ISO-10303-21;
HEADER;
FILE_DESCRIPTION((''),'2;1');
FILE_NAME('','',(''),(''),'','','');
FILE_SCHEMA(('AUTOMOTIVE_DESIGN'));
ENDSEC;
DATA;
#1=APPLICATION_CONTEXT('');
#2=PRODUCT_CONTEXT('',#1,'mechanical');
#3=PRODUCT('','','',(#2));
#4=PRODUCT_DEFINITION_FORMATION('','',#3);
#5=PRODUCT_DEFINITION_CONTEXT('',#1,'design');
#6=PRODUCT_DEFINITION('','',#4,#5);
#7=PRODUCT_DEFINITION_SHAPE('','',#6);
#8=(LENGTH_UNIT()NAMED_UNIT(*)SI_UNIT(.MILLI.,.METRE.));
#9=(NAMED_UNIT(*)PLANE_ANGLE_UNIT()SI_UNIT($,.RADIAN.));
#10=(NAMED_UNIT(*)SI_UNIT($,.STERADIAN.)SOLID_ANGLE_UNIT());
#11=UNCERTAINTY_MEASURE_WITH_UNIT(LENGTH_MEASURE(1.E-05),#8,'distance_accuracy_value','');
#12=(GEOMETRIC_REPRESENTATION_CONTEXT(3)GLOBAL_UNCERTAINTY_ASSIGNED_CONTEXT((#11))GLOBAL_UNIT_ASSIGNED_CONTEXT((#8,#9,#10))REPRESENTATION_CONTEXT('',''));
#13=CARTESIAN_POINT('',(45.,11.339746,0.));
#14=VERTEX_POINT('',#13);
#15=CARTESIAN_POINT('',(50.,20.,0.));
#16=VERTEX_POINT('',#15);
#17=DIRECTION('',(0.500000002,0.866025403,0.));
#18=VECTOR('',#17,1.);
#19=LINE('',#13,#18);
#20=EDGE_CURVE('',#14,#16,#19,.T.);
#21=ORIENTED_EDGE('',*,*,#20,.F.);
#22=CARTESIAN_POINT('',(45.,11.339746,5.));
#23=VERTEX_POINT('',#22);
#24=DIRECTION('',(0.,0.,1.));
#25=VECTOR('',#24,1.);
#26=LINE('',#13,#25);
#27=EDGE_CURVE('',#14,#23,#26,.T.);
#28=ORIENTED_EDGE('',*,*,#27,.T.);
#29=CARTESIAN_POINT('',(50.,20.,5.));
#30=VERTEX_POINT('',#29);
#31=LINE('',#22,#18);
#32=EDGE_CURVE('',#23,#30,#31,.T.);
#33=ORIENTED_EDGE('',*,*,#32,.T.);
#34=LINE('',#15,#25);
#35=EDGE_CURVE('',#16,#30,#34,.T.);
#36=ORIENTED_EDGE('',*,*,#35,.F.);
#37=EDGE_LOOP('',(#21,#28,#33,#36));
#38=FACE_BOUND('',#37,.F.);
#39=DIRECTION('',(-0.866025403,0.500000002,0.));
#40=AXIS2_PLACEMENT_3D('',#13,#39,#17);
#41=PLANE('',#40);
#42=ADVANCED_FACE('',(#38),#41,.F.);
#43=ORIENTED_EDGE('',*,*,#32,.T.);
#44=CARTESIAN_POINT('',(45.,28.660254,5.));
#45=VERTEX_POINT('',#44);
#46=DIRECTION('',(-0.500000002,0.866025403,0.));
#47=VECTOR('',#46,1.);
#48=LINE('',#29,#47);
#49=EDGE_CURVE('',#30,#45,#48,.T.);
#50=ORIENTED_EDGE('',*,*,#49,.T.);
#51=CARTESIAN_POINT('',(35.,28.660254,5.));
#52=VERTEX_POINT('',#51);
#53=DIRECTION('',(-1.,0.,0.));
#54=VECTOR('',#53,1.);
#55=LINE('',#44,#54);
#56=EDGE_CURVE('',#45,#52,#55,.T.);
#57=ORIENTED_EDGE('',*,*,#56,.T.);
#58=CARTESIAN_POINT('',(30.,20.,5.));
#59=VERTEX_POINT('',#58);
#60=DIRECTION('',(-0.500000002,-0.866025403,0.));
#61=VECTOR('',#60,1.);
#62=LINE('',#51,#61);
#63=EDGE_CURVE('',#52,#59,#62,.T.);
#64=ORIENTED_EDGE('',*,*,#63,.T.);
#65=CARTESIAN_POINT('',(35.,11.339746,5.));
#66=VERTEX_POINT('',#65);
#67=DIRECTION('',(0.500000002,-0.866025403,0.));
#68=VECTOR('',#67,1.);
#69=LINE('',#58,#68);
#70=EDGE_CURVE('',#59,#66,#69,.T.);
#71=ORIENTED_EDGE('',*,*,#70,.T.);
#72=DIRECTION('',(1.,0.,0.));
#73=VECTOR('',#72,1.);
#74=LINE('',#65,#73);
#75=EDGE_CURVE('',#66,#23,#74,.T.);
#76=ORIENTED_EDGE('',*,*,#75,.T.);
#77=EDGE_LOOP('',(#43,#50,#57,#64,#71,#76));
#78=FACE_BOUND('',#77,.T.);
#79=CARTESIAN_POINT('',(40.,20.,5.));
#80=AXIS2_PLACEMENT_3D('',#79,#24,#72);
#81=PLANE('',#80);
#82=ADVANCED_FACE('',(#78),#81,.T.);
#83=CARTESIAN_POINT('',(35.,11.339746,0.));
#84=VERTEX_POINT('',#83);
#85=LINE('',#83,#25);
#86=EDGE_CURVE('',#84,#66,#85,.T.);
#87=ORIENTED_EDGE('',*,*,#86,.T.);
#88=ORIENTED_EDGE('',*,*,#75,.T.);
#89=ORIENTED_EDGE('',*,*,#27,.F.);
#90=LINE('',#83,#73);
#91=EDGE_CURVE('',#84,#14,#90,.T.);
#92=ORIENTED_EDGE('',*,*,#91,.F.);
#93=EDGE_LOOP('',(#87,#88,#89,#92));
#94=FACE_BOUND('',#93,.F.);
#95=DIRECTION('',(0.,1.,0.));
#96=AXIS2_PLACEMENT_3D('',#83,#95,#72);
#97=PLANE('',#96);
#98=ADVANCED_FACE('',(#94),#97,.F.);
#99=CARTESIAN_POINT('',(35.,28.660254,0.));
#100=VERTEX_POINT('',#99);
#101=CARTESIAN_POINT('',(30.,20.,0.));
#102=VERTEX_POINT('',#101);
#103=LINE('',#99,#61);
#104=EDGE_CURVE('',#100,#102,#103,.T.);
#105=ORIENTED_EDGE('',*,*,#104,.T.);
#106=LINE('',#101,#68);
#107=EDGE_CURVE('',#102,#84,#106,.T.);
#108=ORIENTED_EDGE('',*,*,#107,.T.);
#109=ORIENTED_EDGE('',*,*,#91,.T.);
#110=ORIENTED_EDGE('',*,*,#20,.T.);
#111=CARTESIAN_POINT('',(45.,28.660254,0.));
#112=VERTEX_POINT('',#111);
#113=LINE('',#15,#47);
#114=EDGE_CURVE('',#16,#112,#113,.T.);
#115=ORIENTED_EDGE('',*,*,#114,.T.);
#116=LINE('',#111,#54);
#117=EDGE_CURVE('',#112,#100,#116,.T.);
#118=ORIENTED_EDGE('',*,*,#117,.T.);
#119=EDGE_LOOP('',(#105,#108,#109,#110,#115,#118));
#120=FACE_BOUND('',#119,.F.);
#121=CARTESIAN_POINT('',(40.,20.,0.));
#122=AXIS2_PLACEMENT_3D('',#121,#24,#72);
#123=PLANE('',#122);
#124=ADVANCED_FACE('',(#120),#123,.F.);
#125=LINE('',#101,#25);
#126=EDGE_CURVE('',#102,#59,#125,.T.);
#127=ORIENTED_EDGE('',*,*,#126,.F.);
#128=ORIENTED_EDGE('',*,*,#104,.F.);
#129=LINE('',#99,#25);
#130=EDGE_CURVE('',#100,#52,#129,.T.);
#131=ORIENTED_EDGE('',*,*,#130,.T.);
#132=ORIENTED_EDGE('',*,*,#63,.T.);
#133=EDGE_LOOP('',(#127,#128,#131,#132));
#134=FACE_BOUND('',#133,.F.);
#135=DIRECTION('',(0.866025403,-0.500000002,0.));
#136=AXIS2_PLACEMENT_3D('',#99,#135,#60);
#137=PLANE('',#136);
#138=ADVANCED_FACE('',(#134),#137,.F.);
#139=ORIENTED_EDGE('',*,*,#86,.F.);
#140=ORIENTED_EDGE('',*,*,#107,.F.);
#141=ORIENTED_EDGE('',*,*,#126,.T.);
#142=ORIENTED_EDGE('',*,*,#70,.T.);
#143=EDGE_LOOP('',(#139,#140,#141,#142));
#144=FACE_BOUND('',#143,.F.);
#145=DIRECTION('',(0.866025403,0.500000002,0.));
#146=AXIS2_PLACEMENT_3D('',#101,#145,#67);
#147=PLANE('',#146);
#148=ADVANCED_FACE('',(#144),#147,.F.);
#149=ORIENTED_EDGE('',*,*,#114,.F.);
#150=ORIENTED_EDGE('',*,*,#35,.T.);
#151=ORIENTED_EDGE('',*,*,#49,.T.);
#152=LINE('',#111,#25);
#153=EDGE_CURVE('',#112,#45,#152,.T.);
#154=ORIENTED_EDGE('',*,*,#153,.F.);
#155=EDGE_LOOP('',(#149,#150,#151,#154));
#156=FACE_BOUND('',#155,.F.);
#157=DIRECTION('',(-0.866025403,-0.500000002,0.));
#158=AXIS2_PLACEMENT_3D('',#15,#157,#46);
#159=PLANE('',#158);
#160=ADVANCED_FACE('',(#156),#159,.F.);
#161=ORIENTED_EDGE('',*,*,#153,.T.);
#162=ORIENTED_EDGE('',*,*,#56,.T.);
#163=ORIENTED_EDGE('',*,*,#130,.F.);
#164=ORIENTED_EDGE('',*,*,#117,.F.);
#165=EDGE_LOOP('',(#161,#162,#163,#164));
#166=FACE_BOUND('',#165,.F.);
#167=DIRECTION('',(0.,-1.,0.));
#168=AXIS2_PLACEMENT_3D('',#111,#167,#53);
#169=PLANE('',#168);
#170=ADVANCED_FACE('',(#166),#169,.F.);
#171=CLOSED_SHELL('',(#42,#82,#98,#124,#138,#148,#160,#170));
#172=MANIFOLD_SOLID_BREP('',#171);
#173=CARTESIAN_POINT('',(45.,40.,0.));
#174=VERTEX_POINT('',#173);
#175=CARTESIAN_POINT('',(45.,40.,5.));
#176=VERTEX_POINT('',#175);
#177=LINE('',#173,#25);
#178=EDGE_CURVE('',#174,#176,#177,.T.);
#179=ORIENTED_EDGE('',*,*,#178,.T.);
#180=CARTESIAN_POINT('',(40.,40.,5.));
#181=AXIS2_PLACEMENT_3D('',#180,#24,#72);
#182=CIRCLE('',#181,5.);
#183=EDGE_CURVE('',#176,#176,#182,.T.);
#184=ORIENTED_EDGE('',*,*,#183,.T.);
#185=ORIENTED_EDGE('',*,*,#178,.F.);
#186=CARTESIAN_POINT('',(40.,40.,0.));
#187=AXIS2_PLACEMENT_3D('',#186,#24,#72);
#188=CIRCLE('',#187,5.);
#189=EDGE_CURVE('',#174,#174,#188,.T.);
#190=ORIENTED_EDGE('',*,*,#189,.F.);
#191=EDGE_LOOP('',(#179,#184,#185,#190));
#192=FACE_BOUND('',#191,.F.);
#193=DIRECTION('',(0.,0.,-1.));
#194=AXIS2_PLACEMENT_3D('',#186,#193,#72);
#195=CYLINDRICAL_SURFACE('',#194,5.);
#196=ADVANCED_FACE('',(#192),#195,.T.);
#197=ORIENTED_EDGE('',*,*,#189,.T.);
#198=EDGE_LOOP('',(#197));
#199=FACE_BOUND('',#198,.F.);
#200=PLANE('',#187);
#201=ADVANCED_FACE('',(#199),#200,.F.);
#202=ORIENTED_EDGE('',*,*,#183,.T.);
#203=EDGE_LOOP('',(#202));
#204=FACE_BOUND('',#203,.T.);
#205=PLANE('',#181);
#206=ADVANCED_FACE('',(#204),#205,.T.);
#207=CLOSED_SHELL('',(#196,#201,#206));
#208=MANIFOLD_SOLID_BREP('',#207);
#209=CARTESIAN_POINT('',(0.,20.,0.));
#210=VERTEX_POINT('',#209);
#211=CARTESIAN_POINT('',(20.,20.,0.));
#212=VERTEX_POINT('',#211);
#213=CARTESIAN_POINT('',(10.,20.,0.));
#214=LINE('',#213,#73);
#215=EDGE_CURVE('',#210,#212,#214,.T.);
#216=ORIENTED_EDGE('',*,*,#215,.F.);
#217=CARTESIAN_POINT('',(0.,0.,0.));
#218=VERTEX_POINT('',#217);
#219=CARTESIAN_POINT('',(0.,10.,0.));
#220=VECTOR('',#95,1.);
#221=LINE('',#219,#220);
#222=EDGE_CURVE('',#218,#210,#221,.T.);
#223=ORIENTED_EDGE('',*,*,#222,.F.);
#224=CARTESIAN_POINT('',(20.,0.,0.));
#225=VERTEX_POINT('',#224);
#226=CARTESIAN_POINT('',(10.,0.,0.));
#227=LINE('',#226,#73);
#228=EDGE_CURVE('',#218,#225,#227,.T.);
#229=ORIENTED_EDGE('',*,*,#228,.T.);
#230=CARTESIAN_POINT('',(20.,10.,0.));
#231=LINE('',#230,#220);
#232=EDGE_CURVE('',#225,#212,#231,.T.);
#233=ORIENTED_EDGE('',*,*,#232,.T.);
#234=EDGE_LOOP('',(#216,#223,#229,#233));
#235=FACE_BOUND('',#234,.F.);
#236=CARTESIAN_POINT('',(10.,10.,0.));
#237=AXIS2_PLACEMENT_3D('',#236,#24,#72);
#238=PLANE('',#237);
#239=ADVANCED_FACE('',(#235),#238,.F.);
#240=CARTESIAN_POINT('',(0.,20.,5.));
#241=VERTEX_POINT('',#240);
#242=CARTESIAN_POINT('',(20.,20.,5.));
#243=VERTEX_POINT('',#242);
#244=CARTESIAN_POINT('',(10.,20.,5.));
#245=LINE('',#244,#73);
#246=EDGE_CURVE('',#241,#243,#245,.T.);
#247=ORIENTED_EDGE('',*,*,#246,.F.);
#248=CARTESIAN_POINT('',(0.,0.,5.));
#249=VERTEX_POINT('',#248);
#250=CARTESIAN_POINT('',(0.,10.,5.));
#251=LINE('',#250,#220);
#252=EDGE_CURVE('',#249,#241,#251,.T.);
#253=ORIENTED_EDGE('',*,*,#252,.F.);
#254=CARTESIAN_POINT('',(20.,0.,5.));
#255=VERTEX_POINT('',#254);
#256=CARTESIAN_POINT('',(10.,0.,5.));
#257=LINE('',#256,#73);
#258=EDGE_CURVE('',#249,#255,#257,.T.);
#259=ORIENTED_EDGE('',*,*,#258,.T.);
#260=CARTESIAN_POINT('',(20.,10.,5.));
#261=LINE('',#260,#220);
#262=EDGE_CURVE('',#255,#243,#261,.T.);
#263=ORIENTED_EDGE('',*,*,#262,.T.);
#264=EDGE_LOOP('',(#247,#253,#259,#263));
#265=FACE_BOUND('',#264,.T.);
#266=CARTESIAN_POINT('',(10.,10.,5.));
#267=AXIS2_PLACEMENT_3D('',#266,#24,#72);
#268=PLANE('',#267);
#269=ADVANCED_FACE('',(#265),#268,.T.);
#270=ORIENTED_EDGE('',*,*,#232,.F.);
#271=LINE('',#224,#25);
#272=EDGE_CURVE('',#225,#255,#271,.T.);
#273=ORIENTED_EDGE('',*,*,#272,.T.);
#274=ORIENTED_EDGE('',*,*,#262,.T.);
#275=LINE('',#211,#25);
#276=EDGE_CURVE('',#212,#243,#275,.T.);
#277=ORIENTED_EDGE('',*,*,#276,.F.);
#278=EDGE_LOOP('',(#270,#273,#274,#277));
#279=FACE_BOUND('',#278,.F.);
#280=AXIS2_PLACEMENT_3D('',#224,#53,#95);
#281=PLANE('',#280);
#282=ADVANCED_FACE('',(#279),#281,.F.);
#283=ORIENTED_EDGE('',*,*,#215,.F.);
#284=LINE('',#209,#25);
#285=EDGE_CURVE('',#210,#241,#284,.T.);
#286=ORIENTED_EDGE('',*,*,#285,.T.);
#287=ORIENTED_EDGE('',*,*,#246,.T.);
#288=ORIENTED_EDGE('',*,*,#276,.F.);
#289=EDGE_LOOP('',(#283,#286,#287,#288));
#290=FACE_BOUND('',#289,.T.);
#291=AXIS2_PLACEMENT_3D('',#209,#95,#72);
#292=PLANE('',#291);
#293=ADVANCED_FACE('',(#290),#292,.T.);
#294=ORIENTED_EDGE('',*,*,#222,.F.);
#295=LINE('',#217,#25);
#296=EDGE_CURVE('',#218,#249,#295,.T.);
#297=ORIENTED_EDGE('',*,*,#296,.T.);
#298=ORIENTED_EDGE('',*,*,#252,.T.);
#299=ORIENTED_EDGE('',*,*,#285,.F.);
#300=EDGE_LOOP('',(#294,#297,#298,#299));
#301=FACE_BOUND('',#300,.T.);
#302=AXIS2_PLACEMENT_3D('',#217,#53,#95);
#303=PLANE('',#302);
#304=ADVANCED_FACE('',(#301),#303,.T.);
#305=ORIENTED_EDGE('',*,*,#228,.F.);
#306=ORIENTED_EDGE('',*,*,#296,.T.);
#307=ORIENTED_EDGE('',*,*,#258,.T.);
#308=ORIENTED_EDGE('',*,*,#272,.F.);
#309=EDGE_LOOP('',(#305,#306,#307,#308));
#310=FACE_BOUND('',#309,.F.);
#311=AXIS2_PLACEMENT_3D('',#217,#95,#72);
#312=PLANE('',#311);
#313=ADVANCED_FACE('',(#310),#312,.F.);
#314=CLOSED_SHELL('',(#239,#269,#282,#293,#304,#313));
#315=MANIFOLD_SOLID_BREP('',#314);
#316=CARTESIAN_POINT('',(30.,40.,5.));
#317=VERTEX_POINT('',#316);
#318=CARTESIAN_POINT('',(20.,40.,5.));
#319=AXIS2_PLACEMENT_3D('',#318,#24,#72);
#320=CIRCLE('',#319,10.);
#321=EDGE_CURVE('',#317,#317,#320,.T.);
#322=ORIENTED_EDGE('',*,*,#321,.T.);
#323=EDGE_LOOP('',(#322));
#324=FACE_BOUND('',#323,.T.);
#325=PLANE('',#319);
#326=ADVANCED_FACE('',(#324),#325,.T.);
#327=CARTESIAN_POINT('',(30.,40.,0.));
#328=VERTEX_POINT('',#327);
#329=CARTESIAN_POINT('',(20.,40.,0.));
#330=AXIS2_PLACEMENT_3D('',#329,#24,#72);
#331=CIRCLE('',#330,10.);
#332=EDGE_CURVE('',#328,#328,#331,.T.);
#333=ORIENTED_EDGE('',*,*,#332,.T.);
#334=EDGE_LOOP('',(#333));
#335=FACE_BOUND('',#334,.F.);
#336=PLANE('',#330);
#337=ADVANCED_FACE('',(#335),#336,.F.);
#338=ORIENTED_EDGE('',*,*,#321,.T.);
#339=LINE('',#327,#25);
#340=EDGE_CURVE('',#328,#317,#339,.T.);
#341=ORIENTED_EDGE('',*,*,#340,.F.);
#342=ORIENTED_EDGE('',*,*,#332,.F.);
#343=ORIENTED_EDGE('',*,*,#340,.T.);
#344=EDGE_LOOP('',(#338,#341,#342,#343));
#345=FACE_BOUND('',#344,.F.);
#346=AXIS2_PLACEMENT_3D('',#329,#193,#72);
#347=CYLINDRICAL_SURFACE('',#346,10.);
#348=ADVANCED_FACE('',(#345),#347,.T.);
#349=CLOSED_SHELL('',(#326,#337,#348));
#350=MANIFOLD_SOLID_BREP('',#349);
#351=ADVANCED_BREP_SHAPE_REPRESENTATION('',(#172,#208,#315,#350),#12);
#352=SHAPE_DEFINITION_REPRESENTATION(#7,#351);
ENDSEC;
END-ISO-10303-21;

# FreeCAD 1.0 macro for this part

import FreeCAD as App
import Part
import Sketcher

V = App.Vector
Q = App.Units.Quantity

doc = App.newDocument("Part")
body = doc.addObject("PartDesign::Body", "Body")
body.AllowCompound = True

# Sketch on XY plane
sketch1 = body.newObject("Sketcher::SketchObject", "Sketch")
sketch1.AttachmentSupport = (doc.getObject("XY_Plane"), [""])
sketch1.MapMode = "FlatFace"
sketch1.addGeometry([
    Part.LineSegment(V(0, 20, 0), V(0, 0, 0)),  # 0
    Part.LineSegment(V(0, 0, 0), V(20, 0, 0)),  # 1
    Part.LineSegment(V(20, 0, 0), V(20, 20, 0)),  # 2
    Part.LineSegment(V(20, 20, 0), V(0, 20, 0)),  # 3
    Part.LineSegment(V(35, 11, 0), V(45, 11, 0)),  # 4
    Part.LineSegment(V(45, 11, 0), V(50, 20, 0)),  # 5
    Part.LineSegment(V(50, 20, 0), V(45, 29, 0)),  # 6
    Part.LineSegment(V(45, 29, 0), V(35, 29, 0)),  # 7
    Part.LineSegment(V(35, 29, 0), V(30, 20, 0)),  # 8
    Part.LineSegment(V(30, 20, 0), V(35, 11, 0)),  # 9
    Part.Circle(V(40, 40, 0), V(0, 0, 1), 5),  # 10
    Part.Circle(V(20, 40, 0), V(0, 0, 1), 10),  # 11
], False)
sketch1.addConstraint([
    Sketcher.Constraint("Coincident", 0, 2, 1, 1),
    Sketcher.Constraint("Coincident", 1, 2, 2, 1),
    Sketcher.Constraint("Coincident", 2, 2, 3, 1),
    Sketcher.Constraint("Coincident", 3, 2, 0, 1),
    Sketcher.Constraint("Coincident", 4, 2, 5, 1),
    Sketcher.Constraint("Coincident", 5, 2, 6, 1),
    Sketcher.Constraint("Coincident", 6, 2, 7, 1),
    Sketcher.Constraint("Coincident", 7, 2, 8, 1),
    Sketcher.Constraint("Coincident", 8, 2, 9, 1),
    Sketcher.Constraint("Coincident", 9, 2, 4, 1),
    Sketcher.Constraint("Vertical", 0),
    Sketcher.Constraint("Horizontal", 1),
    Sketcher.Constraint("Vertical", 2),
    Sketcher.Constraint("Horizontal", 3),
    Sketcher.Constraint("Horizontal", 4),
    Sketcher.Constraint("Horizontal", 7),
    Sketcher.Constraint("Coincident", 0, 2, -1, 1),
    Sketcher.Constraint("Parallel", 5, 8),
    Sketcher.Constraint("Parallel", 6, 9),
    Sketcher.Constraint("Horizontal", 10, 3, 11, 3),
    Sketcher.Constraint("Horizontal", 3, 2, 5, 2),
    Sketcher.Constraint("Horizontal", 5, 2, 8, 2),
    Sketcher.Constraint("Vertical", 11, 3, 1, 2),
    Sketcher.Constraint("Vertical", 4, 2, 6, 2),
    Sketcher.Constraint("Vertical", 7, 2, 9, 2),
    Sketcher.Constraint("Equal", 3, 0),
    Sketcher.Constraint("Diameter", 10, Q("10 mm")),
    Sketcher.Constraint("Diameter", 11, Q("20 mm")),
    Sketcher.Constraint("DistanceX", 1, 1, 1, 2, Q("20 mm")),
    Sketcher.Constraint("DistanceX", 4, 1, 4, 2, Q("10 mm")),
    Sketcher.Constraint("Angle", 5, Q("60 deg")),
    Sketcher.Constraint("Distance", 5, Q("10 mm")),
    Sketcher.Constraint("DistanceX", -1, 1, 10, 3, Q("40 mm")),
    Sketcher.Constraint("DistanceY", -1, 1, 10, 3, Q("40 mm")),
    Sketcher.Constraint("DistanceX", -1, 1, 4, 2, Q("45 mm")),
])
pad1 = body.newObject("PartDesign::Pad", "Pad")
pad1.Profile = sketch1
pad1.Length = 5

doc.recompute()
